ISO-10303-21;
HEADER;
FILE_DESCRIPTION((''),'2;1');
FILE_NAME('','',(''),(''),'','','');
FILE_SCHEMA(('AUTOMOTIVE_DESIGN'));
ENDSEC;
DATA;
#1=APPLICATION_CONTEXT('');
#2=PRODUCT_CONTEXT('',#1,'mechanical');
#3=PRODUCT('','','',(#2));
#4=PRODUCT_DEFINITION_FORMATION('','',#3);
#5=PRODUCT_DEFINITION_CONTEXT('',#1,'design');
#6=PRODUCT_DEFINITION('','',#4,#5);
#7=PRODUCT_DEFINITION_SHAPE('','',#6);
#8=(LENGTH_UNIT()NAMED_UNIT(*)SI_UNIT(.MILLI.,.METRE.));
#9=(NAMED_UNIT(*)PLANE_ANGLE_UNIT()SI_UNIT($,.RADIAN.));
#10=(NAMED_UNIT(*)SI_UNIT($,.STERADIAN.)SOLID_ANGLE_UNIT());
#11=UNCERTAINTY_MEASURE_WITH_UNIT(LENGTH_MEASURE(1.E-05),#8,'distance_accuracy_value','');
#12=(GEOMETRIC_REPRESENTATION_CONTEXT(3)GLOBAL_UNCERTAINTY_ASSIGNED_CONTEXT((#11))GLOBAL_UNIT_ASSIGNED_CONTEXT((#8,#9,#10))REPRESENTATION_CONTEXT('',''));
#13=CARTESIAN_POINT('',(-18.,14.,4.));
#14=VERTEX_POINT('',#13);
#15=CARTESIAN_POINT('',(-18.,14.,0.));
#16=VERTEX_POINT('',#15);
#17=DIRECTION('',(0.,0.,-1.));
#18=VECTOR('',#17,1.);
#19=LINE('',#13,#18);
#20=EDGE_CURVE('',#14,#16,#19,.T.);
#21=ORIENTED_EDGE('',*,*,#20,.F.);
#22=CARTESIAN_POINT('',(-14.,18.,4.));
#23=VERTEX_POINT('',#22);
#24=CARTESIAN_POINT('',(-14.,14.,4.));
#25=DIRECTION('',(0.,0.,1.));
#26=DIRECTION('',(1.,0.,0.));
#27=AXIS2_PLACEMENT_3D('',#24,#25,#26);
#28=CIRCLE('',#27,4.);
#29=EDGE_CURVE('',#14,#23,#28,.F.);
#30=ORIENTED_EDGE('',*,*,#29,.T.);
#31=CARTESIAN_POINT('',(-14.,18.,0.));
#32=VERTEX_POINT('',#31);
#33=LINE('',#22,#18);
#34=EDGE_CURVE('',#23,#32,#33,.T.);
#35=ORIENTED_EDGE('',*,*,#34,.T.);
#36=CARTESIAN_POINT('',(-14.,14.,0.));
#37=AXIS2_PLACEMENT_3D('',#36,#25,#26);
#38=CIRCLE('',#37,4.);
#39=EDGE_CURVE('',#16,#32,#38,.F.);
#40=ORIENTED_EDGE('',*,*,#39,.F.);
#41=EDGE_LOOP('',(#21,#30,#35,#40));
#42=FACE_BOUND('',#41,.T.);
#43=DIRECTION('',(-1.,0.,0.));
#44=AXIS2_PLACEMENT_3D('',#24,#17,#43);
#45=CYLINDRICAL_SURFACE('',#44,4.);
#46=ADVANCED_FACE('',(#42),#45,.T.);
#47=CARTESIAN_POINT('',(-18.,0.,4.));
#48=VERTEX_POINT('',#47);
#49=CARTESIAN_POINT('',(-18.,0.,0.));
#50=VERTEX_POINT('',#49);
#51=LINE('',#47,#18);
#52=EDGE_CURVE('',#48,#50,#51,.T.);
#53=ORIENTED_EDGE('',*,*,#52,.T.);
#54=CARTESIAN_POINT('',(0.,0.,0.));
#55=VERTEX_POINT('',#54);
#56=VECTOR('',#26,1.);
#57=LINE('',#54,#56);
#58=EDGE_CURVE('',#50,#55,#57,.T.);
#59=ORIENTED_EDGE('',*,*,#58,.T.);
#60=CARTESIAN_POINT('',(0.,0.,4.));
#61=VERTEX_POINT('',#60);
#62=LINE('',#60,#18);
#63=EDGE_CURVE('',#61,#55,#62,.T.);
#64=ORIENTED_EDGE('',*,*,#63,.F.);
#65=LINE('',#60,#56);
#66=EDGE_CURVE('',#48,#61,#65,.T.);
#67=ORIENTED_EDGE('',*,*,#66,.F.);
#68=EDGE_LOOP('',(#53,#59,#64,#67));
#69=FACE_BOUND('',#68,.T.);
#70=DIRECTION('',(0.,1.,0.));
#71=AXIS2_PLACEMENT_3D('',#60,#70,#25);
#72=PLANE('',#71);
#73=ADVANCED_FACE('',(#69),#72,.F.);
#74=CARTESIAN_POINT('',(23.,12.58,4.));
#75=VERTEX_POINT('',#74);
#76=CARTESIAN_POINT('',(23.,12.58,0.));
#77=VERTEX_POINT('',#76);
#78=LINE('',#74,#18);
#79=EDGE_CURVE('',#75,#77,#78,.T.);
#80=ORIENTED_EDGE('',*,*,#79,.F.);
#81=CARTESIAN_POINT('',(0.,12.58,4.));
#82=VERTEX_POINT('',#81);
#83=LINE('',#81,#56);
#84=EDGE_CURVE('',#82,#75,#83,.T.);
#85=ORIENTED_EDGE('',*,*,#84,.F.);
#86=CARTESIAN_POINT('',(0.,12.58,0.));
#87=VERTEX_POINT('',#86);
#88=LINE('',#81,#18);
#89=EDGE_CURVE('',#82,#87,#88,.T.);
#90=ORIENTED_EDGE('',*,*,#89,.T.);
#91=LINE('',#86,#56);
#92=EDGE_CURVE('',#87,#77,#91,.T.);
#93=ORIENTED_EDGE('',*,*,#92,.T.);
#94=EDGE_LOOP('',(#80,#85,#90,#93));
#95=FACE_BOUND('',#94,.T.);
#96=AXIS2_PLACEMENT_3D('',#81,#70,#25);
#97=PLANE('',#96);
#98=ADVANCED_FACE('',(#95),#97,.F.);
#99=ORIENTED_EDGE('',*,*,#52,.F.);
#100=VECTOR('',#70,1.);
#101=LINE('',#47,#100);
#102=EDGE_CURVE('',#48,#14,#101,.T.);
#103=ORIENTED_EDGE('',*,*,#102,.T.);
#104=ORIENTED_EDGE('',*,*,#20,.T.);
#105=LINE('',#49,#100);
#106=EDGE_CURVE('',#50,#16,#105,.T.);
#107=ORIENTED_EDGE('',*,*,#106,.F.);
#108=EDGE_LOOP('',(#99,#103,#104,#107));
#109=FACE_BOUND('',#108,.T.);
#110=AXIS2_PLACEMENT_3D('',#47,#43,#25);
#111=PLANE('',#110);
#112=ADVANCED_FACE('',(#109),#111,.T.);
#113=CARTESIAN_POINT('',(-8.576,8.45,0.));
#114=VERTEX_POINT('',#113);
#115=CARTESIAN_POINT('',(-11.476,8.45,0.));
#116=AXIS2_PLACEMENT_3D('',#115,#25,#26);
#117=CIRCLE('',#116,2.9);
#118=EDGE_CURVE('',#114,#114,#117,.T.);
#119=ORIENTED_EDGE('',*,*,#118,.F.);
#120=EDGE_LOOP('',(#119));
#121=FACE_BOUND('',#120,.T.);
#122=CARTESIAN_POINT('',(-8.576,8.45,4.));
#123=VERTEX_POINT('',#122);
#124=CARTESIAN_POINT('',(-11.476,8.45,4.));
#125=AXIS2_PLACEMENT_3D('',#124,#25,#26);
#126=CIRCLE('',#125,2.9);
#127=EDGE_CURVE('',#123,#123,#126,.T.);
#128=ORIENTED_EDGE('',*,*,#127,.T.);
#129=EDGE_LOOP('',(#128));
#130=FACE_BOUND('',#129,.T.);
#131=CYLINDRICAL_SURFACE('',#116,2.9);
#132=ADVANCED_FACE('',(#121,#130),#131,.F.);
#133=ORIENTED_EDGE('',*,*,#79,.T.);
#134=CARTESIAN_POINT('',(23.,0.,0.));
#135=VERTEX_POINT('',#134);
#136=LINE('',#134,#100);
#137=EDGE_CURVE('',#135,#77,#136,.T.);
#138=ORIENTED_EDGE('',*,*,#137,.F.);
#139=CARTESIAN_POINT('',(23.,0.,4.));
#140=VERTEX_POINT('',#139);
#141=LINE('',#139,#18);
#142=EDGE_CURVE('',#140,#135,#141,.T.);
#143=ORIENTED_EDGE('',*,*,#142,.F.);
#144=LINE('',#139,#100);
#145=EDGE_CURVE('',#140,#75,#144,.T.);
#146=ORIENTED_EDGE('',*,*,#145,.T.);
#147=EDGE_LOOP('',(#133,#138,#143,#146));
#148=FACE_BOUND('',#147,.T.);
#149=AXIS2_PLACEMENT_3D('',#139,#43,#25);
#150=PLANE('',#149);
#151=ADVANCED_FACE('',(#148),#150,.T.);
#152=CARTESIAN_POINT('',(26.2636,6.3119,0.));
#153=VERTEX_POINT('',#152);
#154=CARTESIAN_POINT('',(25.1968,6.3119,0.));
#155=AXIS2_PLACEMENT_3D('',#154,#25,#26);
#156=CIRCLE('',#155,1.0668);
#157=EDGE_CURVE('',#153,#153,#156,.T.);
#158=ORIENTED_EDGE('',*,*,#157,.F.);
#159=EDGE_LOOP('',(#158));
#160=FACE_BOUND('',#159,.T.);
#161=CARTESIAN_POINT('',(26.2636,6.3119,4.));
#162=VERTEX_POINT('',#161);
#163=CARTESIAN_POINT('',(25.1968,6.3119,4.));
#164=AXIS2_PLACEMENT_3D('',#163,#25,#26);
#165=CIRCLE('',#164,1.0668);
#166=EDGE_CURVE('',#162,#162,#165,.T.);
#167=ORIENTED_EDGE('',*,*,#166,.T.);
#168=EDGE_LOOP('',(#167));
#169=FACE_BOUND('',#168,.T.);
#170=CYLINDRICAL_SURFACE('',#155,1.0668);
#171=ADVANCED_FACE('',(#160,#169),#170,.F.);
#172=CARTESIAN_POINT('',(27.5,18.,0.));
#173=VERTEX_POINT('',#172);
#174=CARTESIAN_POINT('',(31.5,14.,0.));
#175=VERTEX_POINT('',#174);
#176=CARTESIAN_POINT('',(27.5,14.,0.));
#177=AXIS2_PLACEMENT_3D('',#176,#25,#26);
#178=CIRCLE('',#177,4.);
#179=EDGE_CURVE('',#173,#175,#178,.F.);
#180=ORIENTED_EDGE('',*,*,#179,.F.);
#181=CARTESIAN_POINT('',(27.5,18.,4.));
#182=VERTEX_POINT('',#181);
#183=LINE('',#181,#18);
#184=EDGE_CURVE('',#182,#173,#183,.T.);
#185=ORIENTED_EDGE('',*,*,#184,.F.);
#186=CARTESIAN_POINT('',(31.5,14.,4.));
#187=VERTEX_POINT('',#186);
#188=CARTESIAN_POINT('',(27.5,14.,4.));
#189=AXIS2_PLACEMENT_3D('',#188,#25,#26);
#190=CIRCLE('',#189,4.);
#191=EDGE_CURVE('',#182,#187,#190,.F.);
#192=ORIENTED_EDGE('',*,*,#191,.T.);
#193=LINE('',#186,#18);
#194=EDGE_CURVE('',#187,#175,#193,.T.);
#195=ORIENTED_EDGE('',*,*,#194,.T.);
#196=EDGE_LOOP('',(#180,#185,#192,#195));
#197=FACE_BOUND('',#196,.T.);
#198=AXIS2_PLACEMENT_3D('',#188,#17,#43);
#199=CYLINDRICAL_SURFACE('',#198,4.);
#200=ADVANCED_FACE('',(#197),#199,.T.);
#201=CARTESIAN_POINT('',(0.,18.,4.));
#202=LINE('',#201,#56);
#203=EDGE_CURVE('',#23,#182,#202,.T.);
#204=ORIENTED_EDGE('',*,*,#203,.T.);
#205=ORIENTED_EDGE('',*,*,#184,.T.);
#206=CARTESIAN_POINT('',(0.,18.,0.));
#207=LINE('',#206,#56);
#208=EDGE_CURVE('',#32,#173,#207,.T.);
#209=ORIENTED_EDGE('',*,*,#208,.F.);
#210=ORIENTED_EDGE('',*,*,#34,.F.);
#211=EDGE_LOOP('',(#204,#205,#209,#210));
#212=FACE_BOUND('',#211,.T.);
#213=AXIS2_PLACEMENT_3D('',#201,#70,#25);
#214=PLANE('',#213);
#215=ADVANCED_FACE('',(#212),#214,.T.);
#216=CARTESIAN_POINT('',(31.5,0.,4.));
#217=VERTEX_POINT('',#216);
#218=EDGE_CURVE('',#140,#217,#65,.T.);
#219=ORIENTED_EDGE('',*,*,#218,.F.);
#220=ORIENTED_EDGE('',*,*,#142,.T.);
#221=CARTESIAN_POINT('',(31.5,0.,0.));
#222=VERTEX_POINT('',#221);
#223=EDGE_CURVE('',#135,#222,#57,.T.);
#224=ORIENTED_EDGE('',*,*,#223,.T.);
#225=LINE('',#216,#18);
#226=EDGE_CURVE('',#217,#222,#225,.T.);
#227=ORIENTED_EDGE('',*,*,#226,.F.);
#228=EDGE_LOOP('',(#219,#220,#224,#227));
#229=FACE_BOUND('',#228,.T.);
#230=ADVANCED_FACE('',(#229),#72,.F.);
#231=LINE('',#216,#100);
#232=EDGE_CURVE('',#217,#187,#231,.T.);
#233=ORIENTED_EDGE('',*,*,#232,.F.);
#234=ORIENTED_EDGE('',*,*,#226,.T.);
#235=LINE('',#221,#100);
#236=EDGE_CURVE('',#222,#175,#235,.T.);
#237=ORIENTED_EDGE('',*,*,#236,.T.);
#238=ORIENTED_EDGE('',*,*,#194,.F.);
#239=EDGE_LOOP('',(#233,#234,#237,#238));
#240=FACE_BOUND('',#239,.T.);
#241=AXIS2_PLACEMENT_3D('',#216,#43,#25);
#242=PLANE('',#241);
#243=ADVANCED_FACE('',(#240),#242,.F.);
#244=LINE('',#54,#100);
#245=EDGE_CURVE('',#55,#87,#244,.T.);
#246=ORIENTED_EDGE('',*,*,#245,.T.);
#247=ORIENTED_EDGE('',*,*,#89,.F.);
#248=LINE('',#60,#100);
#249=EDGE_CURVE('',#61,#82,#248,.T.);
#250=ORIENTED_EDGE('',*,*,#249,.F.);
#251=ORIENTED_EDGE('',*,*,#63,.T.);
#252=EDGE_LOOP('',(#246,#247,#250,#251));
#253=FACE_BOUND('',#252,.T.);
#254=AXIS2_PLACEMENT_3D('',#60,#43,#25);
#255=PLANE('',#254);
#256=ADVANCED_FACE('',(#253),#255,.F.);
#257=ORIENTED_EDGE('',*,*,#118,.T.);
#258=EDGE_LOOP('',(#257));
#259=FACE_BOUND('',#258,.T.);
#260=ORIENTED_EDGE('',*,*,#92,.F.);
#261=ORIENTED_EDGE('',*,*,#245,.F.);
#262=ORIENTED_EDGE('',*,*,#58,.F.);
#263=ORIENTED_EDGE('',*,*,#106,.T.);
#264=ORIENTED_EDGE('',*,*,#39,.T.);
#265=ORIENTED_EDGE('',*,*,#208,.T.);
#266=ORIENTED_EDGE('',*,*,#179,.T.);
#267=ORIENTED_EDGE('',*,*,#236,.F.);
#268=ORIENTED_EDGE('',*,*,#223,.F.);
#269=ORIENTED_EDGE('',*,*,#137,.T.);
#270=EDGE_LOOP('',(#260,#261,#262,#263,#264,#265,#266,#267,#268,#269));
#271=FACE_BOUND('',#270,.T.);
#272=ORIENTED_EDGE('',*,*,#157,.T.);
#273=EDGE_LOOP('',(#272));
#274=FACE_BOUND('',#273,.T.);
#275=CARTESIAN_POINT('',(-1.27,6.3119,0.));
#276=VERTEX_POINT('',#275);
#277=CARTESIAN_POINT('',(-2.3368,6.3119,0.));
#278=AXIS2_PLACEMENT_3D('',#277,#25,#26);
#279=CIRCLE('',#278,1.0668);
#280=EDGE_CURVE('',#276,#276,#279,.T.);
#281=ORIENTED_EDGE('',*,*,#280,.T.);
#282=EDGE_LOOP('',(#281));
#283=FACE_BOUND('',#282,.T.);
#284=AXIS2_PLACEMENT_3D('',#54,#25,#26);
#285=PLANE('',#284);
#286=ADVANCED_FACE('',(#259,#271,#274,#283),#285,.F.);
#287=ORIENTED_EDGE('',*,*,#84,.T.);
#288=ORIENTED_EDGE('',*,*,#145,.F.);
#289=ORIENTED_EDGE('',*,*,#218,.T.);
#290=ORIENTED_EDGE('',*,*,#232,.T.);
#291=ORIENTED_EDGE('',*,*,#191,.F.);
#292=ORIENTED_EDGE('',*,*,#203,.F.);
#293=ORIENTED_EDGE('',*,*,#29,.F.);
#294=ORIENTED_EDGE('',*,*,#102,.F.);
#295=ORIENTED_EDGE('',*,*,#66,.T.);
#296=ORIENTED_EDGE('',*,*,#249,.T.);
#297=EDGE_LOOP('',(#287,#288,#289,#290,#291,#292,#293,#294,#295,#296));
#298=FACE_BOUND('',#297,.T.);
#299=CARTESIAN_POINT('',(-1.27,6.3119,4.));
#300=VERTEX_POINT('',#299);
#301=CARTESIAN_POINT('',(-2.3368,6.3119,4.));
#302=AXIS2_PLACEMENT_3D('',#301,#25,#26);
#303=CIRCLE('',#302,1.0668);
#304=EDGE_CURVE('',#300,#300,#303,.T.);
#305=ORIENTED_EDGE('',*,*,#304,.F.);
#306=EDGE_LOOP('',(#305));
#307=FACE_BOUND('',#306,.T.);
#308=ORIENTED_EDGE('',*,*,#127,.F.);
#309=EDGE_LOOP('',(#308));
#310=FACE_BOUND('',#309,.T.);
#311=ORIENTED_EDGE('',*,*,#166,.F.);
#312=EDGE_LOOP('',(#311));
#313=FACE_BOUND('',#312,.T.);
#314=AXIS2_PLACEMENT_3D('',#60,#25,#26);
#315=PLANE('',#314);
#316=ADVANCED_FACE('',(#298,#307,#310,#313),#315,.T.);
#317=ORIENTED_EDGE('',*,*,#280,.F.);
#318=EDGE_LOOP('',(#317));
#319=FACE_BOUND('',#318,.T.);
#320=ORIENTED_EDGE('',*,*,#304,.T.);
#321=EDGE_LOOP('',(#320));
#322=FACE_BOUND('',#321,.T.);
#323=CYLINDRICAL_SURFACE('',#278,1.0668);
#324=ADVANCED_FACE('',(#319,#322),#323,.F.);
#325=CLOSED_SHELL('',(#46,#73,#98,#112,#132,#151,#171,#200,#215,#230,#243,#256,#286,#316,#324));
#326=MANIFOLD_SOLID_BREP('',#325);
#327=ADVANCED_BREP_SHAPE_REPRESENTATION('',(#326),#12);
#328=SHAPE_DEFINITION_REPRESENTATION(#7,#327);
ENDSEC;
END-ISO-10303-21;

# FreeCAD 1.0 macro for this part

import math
import FreeCAD as App
import Part
import Sketcher
from FreeCAD import Vector

doc = App.newDocument("Part")
params = doc.addObject("Spreadsheet::Sheet", "Params")
for row, (alias, value) in enumerate([
    ("sketch1_radius", "4 mm"),
    ("sketch1_width", "18 mm"),
    ("sketch1_width2", "23 mm"),
    ("sketch1_height", "14 mm"),
    ("sketch1_width3", "8.5 mm"),
    ("pad1_length", "4 mm"),
    ("sketch2_diameter", "5.8 mm"),
    ("pocket1_length", "4 mm"),
], start=1):
    params.set(f"A{row}", alias)
    params.set(f"B{row}", "=" + value)
    params.setAlias(f"B{row}", alias)

body = doc.addObject("PartDesign::Body", "Body")

# Sketch on XY plane
sketch1 = doc.addObject("Sketcher::SketchObject", "Sketch")
body.addObject(sketch1)
sketch1.AttachmentSupport = (doc.XY_Plane, [""])
sketch1.MapMode = "FlatFace"
sketch1.addGeometry([
    Part.LineSegment(Vector(-18, 0, 0), Vector(0, 0, 0)),  # 0
    Part.LineSegment(Vector(0, 0, 0), Vector(0, 12.58, 0)),  # 1
    Part.LineSegment(Vector(0, 12.58, 0), Vector(23, 12.58, 0)),  # 2
    Part.LineSegment(Vector(23, 12.58, 0), Vector(23, 0, 0)),  # 3
    Part.LineSegment(Vector(23, 0, 0), Vector(31.5, 0, 0)),  # 4
    Part.LineSegment(Vector(31.5, 0, 0), Vector(31.5, 14, 0)),  # 5
    Part.ArcOfCircle(Part.Circle(Vector(27.5, 14, 0), Vector(0, 0, 1), 4), math.radians(0), math.radians(90)),  # 6
    Part.LineSegment(Vector(27.5, 18, 0), Vector(-14, 18, 0)),  # 7
    Part.ArcOfCircle(Part.Circle(Vector(-14, 14, 0), Vector(0, 0, 1), 4), math.radians(90), math.radians(180)),  # 8
    Part.LineSegment(Vector(-18, 14, 0), Vector(-18, 0, 0)),  # 9
], False)
sketch1.addConstraint([
    Sketcher.Constraint("Coincident", 0, 2, 1, 1),
    Sketcher.Constraint("Coincident", 1, 2, 2, 1),
    Sketcher.Constraint("Coincident", 2, 2, 3, 1),
    Sketcher.Constraint("Coincident", 3, 2, 4, 1),
    Sketcher.Constraint("Coincident", 4, 2, 5, 1),
    Sketcher.Constraint("Tangent", 5, 2, 6, 1),
    Sketcher.Constraint("Tangent", 6, 2, 7, 1),
    Sketcher.Constraint("Tangent", 7, 2, 8, 1),
    Sketcher.Constraint("Tangent", 8, 2, 9, 1),
    Sketcher.Constraint("Coincident", 9, 2, 0, 1),
    Sketcher.Constraint("Horizontal", 0),
    Sketcher.Constraint("Vertical", 1),
    Sketcher.Constraint("Horizontal", 2),
    Sketcher.Constraint("Vertical", 3),
    Sketcher.Constraint("Horizontal", 4),
    Sketcher.Constraint("Vertical", 5),
    Sketcher.Constraint("Horizontal", 7),
    Sketcher.Constraint("Vertical", 9),
    Sketcher.Constraint("Coincident", 0, 2, -1, 1),
    Sketcher.Constraint("Equal", 6, 8),
    Sketcher.Constraint("PointOnObject", 3, 2, -1),
    Sketcher.Constraint("Radius", 6, 4.0),
    Sketcher.Constraint("DistanceX", 0, 1, 0, 2, 18.0),
    Sketcher.Constraint("DistanceX", 2, 1, 2, 2, 23.0),
    Sketcher.Constraint("DistanceY", 5, 1, 5, 2, 14.0),
    Sketcher.Constraint("DistanceX", 4, 1, 4, 2, 8.5),
    Sketcher.Constraint("DistanceY", 1, 1, 1, 2, 12.58),
])
sketch1.setExpression("Constraints[21]", "Params.sketch1_radius")
sketch1.setExpression("Constraints[22]", "Params.sketch1_width")
sketch1.setExpression("Constraints[23]", "Params.sketch1_width2")
sketch1.setExpression("Constraints[24]", "Params.sketch1_height")
sketch1.setExpression("Constraints[25]", "Params.sketch1_width3")
pad1 = doc.addObject("PartDesign::Pad", "Pad")
body.addObject(pad1)
pad1.Profile = sketch1
pad1.setExpression("Length", "Params.pad1_length")

# Sketch on XY plane
sketch2 = doc.addObject("Sketcher::SketchObject", "Sketch001")
body.addObject(sketch2)
sketch2.AttachmentSupport = (doc.XY_Plane, [""])
sketch2.MapMode = "FlatFace"
sketch2.AttachmentOffset = App.Placement(Vector(0, 0, 4), App.Rotation())
sketch2.addGeometry([
    Part.Circle(Vector(25.1968, 6.3119, 0), Vector(0, 0, 1), 1.0668),
    Part.Circle(Vector(-2.3368, 6.3119, 0), Vector(0, 0, 1), 1.0668),
    Part.Circle(Vector(-11.476, 8.45, 0), Vector(0, 0, 1), 2.9),
], False)
sketch2.addConstraint([
    Sketcher.Constraint("Equal", 0, 1),
    Sketcher.Constraint("Horizontal", 0, 3, 1, 3),
    Sketcher.Constraint("Diameter", 2, 5.8),
    Sketcher.Constraint("Diameter", 0, 2.1336),
    Sketcher.Constraint("DistanceY", -1, 1, 2, 3, 8.45),
    Sketcher.Constraint("DistanceX", 2, 3, -1, 1, 11.476),
    Sketcher.Constraint("DistanceX", -1, 1, 0, 3, 25.1968),
    Sketcher.Constraint("DistanceY", -1, 1, 0, 3, 6.3119),
    Sketcher.Constraint("DistanceX", 1, 3, -1, 1, 2.3368),
])
sketch2.setExpression("Constraints[2]", "Params.sketch2_diameter")
pocket1 = doc.addObject("PartDesign::Pocket", "Pocket")
body.addObject(pocket1)
pocket1.Profile = sketch2
pocket1.setExpression("Length", "Params.pocket1_length")

doc.recompute()
